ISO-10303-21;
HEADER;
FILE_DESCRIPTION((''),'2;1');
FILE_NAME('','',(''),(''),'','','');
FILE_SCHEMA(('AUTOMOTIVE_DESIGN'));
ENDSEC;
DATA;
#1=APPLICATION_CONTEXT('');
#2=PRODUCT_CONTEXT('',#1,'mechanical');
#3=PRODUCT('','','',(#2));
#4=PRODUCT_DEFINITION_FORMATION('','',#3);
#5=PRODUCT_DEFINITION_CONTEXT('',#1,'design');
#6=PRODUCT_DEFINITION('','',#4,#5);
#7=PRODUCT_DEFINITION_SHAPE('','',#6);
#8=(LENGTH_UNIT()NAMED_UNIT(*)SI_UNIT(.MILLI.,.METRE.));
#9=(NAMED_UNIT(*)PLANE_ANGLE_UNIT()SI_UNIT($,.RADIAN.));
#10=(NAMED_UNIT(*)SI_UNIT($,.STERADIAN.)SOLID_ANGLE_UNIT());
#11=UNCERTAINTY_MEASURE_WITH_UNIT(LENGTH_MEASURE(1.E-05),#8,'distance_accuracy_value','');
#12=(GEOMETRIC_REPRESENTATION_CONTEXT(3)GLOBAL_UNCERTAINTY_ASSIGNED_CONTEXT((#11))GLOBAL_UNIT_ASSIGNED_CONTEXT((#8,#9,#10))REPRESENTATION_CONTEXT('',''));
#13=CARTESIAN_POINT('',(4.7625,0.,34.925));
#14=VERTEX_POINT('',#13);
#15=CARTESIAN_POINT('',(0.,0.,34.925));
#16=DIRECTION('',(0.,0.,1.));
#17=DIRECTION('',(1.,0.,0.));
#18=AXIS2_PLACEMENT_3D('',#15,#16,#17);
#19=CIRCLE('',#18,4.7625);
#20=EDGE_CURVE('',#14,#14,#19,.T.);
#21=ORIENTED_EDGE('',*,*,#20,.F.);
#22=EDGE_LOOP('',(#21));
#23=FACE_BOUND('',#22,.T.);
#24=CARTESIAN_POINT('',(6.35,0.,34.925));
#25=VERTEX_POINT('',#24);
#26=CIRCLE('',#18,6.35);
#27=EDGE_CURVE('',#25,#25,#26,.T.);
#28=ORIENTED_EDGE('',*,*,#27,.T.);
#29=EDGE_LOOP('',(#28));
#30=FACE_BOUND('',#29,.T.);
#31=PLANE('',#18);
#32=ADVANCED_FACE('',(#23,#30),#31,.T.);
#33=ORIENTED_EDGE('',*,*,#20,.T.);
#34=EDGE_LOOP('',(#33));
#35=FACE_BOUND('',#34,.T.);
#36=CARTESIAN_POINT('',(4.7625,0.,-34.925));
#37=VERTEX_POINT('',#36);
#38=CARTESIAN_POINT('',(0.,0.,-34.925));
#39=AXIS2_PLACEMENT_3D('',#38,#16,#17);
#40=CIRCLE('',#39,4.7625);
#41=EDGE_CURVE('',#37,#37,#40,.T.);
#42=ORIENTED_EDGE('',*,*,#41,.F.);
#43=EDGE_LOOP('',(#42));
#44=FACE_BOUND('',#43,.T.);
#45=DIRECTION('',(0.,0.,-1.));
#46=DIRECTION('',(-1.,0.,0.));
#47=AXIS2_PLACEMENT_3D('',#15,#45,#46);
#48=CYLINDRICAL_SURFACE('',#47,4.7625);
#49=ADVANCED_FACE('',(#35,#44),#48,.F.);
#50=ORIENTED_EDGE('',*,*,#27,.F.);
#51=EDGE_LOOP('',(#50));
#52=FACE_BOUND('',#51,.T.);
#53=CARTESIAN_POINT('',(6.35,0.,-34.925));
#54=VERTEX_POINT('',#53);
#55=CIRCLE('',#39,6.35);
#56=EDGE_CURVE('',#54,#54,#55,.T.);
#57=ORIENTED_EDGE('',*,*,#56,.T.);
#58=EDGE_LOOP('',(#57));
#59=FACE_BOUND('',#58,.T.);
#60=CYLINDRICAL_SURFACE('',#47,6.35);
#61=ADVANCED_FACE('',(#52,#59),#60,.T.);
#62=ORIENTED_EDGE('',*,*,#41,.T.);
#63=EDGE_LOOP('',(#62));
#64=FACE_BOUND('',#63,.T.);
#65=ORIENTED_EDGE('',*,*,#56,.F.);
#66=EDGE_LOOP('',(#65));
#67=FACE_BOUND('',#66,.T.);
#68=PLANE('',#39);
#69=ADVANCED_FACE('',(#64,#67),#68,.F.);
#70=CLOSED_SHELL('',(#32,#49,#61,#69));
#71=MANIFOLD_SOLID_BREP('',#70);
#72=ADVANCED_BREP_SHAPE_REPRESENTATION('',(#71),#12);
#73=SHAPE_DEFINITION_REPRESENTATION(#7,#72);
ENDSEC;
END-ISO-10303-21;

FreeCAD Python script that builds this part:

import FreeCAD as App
import Part
import Sketcher

V = App.Vector
Q = App.Units.Quantity

doc = App.newDocument("Part")
body = doc.addObject("PartDesign::Body", "Body")

sketch1 = doc.addObject("Sketcher::SketchObject", "Sketch")
body.addObject(sketch1)
sketch1.AttachmentSupport = (doc.XY_Plane, [""])
sketch1.MapMode = "FlatFace"
sketch1.addGeometry([
    Part.Circle(V(0, 0, 0), V(0, 0, 1), 6.3),
    Part.Circle(V(0, 0, 0), V(0, 0, 1), 4.8),
], False)
sketch1.addConstraint([
    Sketcher.Constraint("Coincident", 0, 3, -1, 1),
    Sketcher.Constraint("Coincident", 1, 3, -1, 1),
    Sketcher.Constraint("Diameter", 0, Q("0.5 in")),
    Sketcher.Constraint("Diameter", 1, Q("0.375 in")),
])
pad1 = doc.addObject("PartDesign::Pad", "Pad")
body.addObject(pad1)
pad1.Profile = sketch1
pad1.Length = Q("2.75 in")
pad1.Midplane = True

doc.recompute()
